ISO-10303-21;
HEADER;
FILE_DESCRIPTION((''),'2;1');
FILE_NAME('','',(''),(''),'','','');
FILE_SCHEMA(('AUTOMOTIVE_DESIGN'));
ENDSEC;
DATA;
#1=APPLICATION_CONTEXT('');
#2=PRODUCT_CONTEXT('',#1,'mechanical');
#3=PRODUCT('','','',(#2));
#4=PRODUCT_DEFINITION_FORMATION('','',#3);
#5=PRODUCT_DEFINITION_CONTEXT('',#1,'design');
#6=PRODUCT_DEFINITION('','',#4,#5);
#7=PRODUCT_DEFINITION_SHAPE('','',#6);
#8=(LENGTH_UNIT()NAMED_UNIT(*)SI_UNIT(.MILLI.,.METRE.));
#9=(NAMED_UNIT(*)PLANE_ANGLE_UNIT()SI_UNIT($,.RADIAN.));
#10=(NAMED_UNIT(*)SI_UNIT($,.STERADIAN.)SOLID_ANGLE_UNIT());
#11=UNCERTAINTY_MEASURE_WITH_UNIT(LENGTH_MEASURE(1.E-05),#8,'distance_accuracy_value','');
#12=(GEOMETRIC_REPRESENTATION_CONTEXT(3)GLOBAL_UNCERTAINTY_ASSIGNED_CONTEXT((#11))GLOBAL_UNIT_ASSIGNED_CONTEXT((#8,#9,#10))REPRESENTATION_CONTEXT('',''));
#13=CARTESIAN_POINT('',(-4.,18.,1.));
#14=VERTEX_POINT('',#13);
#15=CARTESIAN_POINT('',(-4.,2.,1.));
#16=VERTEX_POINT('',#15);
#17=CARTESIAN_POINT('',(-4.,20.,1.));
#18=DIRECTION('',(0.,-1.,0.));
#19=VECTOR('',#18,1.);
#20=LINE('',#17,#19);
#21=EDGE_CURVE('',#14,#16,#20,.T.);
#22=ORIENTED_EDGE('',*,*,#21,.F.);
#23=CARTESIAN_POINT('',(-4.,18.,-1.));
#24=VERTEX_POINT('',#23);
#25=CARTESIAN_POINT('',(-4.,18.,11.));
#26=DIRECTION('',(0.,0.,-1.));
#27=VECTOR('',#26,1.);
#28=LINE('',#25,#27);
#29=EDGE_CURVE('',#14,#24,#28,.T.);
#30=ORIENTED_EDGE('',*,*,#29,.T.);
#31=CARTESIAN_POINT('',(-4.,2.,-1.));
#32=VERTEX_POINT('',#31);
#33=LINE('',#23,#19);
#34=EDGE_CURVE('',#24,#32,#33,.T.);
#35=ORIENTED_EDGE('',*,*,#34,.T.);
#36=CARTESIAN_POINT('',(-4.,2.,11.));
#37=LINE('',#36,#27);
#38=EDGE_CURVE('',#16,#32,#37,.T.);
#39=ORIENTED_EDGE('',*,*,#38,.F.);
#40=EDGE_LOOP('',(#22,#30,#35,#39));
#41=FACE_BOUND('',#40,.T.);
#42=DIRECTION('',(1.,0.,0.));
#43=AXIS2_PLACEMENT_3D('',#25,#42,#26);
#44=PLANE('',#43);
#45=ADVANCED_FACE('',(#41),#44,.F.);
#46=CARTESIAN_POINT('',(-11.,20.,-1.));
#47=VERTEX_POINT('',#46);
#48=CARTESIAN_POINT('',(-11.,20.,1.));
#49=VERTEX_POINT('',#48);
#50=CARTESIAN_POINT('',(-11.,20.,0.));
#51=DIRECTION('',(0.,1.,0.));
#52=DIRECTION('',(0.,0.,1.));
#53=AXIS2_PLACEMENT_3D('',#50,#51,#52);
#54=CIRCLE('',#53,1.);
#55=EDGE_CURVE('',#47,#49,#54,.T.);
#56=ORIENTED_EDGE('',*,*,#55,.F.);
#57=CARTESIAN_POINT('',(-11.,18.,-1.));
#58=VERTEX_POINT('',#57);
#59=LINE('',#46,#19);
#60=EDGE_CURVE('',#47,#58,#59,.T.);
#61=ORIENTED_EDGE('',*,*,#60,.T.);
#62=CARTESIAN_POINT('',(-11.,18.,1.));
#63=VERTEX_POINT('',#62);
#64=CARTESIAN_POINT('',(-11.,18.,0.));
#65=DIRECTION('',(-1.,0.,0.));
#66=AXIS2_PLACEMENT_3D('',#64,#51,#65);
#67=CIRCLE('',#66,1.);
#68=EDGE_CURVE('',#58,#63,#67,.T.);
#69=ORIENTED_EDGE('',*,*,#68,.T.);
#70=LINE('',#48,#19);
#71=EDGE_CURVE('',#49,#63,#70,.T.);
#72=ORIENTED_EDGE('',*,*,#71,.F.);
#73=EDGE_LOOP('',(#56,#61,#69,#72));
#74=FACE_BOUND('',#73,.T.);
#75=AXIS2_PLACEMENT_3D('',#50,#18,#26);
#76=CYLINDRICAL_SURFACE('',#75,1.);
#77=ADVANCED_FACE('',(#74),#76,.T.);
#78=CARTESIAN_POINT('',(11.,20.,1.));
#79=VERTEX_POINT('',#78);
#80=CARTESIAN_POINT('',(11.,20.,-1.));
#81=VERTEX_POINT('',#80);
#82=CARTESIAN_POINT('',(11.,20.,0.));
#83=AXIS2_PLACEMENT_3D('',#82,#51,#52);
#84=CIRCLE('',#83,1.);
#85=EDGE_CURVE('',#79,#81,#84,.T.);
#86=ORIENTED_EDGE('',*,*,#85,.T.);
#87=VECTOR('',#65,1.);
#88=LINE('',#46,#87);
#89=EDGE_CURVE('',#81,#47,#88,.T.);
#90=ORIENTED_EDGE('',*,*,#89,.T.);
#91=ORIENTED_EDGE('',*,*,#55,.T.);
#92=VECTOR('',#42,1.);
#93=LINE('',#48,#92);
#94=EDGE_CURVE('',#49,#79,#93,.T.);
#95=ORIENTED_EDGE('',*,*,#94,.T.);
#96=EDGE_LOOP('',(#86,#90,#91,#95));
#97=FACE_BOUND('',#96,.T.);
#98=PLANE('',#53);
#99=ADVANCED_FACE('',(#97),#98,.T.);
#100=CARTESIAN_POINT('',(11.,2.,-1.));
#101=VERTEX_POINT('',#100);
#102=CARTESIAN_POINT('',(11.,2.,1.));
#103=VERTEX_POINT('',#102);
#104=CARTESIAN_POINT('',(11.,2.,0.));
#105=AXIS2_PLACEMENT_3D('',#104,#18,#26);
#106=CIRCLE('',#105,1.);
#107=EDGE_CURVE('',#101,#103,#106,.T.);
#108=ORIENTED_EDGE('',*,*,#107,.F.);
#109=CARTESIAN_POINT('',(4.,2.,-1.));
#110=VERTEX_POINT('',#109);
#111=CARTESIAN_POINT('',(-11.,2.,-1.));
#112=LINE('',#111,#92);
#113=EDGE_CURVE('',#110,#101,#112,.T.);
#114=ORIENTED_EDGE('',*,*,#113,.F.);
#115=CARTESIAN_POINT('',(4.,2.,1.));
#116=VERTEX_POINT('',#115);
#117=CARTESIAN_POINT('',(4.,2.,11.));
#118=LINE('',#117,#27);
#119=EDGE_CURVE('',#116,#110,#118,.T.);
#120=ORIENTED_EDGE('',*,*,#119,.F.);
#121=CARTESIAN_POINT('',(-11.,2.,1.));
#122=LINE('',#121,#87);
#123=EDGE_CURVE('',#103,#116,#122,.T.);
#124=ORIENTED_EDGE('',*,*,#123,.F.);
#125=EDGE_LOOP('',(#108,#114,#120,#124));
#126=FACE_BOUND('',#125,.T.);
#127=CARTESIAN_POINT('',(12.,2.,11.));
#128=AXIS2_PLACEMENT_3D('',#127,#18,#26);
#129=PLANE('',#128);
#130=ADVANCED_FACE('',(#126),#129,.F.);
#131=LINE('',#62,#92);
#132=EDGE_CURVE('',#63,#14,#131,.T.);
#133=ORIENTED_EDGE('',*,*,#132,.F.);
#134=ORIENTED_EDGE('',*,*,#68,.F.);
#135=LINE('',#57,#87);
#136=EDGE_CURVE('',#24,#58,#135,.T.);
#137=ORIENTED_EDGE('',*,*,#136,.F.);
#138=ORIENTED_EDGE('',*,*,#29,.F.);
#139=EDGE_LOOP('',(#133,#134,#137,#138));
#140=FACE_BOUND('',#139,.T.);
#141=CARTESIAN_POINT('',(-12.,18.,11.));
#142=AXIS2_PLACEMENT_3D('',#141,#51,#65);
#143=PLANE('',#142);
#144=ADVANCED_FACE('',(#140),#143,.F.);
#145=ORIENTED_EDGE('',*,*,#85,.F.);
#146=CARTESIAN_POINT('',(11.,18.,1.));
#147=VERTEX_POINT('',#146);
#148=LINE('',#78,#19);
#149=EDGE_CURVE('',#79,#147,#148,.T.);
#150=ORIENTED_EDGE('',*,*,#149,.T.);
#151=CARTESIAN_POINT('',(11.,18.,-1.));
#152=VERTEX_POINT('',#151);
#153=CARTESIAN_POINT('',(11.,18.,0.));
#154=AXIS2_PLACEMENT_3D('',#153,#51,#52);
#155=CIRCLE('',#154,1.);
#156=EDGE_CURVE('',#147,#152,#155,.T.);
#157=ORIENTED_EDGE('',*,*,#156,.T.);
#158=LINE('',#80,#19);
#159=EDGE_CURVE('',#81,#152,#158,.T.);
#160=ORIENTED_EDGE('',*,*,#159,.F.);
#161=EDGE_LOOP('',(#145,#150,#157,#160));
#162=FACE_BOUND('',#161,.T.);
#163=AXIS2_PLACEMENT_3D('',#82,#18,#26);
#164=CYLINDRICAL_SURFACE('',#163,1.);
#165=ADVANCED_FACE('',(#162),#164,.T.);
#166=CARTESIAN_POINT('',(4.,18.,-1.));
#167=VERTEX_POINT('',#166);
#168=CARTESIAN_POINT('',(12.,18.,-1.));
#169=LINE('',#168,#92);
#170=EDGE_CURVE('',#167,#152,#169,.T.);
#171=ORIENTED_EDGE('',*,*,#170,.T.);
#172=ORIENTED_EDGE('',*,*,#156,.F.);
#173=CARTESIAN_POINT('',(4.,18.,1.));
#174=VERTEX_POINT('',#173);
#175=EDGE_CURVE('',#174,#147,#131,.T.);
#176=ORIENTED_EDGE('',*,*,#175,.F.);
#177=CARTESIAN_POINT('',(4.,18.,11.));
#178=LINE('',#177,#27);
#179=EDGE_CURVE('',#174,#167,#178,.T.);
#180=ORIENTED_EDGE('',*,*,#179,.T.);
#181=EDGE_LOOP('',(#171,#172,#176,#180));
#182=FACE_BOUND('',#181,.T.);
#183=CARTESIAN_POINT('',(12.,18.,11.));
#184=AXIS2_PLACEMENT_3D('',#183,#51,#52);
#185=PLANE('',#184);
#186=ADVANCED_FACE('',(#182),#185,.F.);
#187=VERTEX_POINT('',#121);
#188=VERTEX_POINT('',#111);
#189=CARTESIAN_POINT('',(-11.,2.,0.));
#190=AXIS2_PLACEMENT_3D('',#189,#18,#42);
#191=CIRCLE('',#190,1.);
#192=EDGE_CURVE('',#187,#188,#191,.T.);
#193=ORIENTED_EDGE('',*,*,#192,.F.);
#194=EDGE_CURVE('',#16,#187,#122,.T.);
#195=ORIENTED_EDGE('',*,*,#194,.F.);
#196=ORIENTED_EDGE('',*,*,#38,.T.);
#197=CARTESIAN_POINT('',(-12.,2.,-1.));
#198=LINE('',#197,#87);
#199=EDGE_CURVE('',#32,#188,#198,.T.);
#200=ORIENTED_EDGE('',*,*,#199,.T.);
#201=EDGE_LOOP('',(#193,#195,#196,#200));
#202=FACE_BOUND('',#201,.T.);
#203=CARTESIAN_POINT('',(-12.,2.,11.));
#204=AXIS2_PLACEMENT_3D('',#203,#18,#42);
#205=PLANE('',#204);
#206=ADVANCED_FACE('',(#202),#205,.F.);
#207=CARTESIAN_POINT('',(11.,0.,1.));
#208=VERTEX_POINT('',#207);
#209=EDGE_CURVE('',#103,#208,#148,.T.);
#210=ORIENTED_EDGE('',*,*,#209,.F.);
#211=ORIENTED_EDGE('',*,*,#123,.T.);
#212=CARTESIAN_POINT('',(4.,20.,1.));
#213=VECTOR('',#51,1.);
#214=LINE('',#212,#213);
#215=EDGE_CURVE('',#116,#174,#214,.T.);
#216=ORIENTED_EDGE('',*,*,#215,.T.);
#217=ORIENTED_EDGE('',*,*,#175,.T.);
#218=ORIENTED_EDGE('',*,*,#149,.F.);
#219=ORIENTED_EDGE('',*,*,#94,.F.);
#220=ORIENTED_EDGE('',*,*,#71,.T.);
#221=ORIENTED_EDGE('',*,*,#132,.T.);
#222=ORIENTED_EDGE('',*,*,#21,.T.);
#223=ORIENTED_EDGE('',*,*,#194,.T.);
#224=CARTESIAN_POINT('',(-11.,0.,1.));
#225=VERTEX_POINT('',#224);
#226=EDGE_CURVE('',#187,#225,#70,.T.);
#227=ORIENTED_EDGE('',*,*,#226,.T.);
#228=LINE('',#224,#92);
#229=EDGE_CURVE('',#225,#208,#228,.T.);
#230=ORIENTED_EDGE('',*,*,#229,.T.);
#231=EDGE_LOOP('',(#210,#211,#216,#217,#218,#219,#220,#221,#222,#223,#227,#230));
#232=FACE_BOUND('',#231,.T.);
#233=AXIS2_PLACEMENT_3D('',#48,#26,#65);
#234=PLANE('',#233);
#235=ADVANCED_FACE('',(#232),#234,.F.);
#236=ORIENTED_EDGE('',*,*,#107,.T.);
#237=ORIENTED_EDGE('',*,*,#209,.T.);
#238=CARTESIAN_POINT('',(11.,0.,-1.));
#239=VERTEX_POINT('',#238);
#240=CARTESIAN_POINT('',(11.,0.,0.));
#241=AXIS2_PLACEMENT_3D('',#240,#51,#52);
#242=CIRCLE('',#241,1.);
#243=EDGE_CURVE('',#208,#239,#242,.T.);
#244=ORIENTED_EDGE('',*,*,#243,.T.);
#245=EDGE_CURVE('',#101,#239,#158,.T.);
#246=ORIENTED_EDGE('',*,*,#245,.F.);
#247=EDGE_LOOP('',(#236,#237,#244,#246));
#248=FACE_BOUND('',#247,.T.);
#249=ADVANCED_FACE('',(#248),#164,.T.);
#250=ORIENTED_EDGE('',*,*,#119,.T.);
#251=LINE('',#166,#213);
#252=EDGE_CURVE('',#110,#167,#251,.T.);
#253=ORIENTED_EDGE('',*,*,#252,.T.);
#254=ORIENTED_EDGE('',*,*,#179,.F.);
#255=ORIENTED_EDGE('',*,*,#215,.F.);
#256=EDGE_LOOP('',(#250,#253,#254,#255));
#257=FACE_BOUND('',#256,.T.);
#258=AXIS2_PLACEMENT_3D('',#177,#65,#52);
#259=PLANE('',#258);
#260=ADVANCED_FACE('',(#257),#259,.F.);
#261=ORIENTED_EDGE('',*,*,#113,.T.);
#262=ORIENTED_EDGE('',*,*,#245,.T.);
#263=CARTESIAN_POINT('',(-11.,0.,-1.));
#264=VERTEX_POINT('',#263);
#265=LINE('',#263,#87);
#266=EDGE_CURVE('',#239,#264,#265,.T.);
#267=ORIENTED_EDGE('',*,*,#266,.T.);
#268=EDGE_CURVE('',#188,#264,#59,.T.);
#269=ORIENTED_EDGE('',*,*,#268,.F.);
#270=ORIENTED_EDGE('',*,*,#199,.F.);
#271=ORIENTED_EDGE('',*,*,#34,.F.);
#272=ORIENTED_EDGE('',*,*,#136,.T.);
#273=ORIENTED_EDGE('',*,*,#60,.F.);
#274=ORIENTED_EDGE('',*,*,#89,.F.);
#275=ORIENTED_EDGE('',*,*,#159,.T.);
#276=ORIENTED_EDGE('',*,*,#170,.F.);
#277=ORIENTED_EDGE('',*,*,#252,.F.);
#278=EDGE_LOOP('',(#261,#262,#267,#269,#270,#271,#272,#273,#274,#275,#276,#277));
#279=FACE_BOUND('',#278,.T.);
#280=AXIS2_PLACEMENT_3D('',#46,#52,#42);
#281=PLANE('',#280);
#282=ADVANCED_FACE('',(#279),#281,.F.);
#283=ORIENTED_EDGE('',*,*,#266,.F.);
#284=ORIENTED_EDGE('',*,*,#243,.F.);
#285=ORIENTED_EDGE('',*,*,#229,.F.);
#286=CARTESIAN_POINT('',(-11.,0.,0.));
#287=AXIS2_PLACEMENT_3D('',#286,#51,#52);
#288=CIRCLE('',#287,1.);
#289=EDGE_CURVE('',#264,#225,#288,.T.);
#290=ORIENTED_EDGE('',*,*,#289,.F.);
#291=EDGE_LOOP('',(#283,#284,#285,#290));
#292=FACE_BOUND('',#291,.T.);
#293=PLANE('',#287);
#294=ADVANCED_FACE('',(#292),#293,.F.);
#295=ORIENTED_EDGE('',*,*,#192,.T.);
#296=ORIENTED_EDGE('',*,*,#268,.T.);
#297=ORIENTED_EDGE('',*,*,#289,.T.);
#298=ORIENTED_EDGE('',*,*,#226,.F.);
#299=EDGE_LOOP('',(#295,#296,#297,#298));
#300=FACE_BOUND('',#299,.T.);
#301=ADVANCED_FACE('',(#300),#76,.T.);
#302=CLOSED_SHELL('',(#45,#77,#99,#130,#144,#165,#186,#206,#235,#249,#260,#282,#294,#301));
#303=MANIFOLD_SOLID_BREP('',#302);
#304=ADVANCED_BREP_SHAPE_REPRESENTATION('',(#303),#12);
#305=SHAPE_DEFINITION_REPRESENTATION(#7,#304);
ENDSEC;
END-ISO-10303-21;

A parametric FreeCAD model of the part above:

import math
import FreeCAD as App
import Part
import Sketcher
from FreeCAD import Vector
Q = App.Units.Quantity

doc = App.newDocument("Part")
body = doc.addObject("PartDesign::Body", "Body")

sketch1 = body.newObject("Sketcher::SketchObject", "Sketch")
sketch1.AttachmentSupport = (doc.getObject("XZ_Plane"), [""])
sketch1.MapMode = "FlatFace"
sketch1.addGeometry([
    Part.LineSegment(Vector(11, -1, 0), Vector(-11, -1, 0)),
    Part.ArcOfCircle(Part.Circle(Vector(-11, 0, 0), Vector(0, 0, 1), 1), math.radians(90), math.radians(270)),
    Part.LineSegment(Vector(-11, 1, 0), Vector(11, 1, 0)),
    Part.ArcOfCircle(Part.Circle(Vector(11, 0, 0), Vector(0, 0, 1), 1), math.radians(-90), math.radians(90)),
], False)
sketch1.addConstraint([
    Sketcher.Constraint("Tangent", 0, 2, 1, 2),
    Sketcher.Constraint("Tangent", 1, 1, 2, 1),
    Sketcher.Constraint("Tangent", 2, 2, 3, 2),
    Sketcher.Constraint("Tangent", 3, 1, 0, 1),
    Sketcher.Constraint("Horizontal", 0),
    Sketcher.Constraint("Horizontal", 2),
    Sketcher.Constraint("Symmetric", 1, 3, 3, 3, -1, 1),
    Sketcher.Constraint("Radius", 1, Q("1 mm")),
    Sketcher.Constraint("DistanceX", 0, 2, 0, 1, Q("22 mm")),
])
pad1 = body.newObject("PartDesign::Pad", "Pad")
pad1.Profile = sketch1
pad1.Length = 20
pad1.Reversed = True

sketch2 = body.newObject("Sketcher::SketchObject", "Sketch001")
sketch2.AttachmentSupport = (doc.getObject("XY_Plane"), [""])
sketch2.MapMode = "FlatFace"
sketch2.AttachmentOffset = App.Placement(Vector(0, 0, -1), App.Rotation())
sketch2.addGeometry([
    Part.LineSegment(Vector(12, 18, 0), Vector(12, 2, 0)),
    Part.LineSegment(Vector(12, 2, 0), Vector(4, 2, 0)),
    Part.LineSegment(Vector(4, 2, 0), Vector(4, 18, 0)),
    Part.LineSegment(Vector(4, 18, 0), Vector(12, 18, 0)),
    Part.LineSegment(Vector(-4, 18, 0), Vector(-4, 2, 0)),
    Part.LineSegment(Vector(-4, 2, 0), Vector(-12, 2, 0)),
    Part.LineSegment(Vector(-12, 2, 0), Vector(-12, 18, 0)),
    Part.LineSegment(Vector(-12, 18, 0), Vector(-4, 18, 0)),
], False)
sketch2.addConstraint([
    Sketcher.Constraint("Coincident", 0, 2, 1, 1),
    Sketcher.Constraint("Coincident", 1, 2, 2, 1),
    Sketcher.Constraint("Coincident", 2, 2, 3, 1),
    Sketcher.Constraint("Coincident", 3, 2, 0, 1),
    Sketcher.Constraint("Coincident", 4, 2, 5, 1),
    Sketcher.Constraint("Coincident", 5, 2, 6, 1),
    Sketcher.Constraint("Coincident", 6, 2, 7, 1),
    Sketcher.Constraint("Coincident", 7, 2, 4, 1),
    Sketcher.Constraint("Vertical", 0),
    Sketcher.Constraint("Horizontal", 1),
    Sketcher.Constraint("Vertical", 2),
    Sketcher.Constraint("Horizontal", 3),
    Sketcher.Constraint("Vertical", 4),
    Sketcher.Constraint("Horizontal", 5),
    Sketcher.Constraint("Vertical", 6),
    Sketcher.Constraint("Horizontal", 7),
    Sketcher.Constraint("Symmetric", 1, 2, 4, 2, -2),
    Sketcher.Constraint("Symmetric", 3, 2, 6, 2, -2),
    Sketcher.Constraint("DistanceX", 1, 2, 1, 1, Q("8 mm")),
    Sketcher.Constraint("DistanceY", 0, 2, 0, 1, Q("16 mm")),
    Sketcher.Constraint("DistanceX", -1, 1, 0, 2, Q("12 mm")),
    Sketcher.Constraint("DistanceY", -1, 1, 0, 2, Q("2 mm")),
])
pocket1 = body.newObject("PartDesign::Pocket", "Pocket")
pocket1.Profile = sketch2
pocket1.Length = 12
pocket1.Reversed = True

doc.recompute()
